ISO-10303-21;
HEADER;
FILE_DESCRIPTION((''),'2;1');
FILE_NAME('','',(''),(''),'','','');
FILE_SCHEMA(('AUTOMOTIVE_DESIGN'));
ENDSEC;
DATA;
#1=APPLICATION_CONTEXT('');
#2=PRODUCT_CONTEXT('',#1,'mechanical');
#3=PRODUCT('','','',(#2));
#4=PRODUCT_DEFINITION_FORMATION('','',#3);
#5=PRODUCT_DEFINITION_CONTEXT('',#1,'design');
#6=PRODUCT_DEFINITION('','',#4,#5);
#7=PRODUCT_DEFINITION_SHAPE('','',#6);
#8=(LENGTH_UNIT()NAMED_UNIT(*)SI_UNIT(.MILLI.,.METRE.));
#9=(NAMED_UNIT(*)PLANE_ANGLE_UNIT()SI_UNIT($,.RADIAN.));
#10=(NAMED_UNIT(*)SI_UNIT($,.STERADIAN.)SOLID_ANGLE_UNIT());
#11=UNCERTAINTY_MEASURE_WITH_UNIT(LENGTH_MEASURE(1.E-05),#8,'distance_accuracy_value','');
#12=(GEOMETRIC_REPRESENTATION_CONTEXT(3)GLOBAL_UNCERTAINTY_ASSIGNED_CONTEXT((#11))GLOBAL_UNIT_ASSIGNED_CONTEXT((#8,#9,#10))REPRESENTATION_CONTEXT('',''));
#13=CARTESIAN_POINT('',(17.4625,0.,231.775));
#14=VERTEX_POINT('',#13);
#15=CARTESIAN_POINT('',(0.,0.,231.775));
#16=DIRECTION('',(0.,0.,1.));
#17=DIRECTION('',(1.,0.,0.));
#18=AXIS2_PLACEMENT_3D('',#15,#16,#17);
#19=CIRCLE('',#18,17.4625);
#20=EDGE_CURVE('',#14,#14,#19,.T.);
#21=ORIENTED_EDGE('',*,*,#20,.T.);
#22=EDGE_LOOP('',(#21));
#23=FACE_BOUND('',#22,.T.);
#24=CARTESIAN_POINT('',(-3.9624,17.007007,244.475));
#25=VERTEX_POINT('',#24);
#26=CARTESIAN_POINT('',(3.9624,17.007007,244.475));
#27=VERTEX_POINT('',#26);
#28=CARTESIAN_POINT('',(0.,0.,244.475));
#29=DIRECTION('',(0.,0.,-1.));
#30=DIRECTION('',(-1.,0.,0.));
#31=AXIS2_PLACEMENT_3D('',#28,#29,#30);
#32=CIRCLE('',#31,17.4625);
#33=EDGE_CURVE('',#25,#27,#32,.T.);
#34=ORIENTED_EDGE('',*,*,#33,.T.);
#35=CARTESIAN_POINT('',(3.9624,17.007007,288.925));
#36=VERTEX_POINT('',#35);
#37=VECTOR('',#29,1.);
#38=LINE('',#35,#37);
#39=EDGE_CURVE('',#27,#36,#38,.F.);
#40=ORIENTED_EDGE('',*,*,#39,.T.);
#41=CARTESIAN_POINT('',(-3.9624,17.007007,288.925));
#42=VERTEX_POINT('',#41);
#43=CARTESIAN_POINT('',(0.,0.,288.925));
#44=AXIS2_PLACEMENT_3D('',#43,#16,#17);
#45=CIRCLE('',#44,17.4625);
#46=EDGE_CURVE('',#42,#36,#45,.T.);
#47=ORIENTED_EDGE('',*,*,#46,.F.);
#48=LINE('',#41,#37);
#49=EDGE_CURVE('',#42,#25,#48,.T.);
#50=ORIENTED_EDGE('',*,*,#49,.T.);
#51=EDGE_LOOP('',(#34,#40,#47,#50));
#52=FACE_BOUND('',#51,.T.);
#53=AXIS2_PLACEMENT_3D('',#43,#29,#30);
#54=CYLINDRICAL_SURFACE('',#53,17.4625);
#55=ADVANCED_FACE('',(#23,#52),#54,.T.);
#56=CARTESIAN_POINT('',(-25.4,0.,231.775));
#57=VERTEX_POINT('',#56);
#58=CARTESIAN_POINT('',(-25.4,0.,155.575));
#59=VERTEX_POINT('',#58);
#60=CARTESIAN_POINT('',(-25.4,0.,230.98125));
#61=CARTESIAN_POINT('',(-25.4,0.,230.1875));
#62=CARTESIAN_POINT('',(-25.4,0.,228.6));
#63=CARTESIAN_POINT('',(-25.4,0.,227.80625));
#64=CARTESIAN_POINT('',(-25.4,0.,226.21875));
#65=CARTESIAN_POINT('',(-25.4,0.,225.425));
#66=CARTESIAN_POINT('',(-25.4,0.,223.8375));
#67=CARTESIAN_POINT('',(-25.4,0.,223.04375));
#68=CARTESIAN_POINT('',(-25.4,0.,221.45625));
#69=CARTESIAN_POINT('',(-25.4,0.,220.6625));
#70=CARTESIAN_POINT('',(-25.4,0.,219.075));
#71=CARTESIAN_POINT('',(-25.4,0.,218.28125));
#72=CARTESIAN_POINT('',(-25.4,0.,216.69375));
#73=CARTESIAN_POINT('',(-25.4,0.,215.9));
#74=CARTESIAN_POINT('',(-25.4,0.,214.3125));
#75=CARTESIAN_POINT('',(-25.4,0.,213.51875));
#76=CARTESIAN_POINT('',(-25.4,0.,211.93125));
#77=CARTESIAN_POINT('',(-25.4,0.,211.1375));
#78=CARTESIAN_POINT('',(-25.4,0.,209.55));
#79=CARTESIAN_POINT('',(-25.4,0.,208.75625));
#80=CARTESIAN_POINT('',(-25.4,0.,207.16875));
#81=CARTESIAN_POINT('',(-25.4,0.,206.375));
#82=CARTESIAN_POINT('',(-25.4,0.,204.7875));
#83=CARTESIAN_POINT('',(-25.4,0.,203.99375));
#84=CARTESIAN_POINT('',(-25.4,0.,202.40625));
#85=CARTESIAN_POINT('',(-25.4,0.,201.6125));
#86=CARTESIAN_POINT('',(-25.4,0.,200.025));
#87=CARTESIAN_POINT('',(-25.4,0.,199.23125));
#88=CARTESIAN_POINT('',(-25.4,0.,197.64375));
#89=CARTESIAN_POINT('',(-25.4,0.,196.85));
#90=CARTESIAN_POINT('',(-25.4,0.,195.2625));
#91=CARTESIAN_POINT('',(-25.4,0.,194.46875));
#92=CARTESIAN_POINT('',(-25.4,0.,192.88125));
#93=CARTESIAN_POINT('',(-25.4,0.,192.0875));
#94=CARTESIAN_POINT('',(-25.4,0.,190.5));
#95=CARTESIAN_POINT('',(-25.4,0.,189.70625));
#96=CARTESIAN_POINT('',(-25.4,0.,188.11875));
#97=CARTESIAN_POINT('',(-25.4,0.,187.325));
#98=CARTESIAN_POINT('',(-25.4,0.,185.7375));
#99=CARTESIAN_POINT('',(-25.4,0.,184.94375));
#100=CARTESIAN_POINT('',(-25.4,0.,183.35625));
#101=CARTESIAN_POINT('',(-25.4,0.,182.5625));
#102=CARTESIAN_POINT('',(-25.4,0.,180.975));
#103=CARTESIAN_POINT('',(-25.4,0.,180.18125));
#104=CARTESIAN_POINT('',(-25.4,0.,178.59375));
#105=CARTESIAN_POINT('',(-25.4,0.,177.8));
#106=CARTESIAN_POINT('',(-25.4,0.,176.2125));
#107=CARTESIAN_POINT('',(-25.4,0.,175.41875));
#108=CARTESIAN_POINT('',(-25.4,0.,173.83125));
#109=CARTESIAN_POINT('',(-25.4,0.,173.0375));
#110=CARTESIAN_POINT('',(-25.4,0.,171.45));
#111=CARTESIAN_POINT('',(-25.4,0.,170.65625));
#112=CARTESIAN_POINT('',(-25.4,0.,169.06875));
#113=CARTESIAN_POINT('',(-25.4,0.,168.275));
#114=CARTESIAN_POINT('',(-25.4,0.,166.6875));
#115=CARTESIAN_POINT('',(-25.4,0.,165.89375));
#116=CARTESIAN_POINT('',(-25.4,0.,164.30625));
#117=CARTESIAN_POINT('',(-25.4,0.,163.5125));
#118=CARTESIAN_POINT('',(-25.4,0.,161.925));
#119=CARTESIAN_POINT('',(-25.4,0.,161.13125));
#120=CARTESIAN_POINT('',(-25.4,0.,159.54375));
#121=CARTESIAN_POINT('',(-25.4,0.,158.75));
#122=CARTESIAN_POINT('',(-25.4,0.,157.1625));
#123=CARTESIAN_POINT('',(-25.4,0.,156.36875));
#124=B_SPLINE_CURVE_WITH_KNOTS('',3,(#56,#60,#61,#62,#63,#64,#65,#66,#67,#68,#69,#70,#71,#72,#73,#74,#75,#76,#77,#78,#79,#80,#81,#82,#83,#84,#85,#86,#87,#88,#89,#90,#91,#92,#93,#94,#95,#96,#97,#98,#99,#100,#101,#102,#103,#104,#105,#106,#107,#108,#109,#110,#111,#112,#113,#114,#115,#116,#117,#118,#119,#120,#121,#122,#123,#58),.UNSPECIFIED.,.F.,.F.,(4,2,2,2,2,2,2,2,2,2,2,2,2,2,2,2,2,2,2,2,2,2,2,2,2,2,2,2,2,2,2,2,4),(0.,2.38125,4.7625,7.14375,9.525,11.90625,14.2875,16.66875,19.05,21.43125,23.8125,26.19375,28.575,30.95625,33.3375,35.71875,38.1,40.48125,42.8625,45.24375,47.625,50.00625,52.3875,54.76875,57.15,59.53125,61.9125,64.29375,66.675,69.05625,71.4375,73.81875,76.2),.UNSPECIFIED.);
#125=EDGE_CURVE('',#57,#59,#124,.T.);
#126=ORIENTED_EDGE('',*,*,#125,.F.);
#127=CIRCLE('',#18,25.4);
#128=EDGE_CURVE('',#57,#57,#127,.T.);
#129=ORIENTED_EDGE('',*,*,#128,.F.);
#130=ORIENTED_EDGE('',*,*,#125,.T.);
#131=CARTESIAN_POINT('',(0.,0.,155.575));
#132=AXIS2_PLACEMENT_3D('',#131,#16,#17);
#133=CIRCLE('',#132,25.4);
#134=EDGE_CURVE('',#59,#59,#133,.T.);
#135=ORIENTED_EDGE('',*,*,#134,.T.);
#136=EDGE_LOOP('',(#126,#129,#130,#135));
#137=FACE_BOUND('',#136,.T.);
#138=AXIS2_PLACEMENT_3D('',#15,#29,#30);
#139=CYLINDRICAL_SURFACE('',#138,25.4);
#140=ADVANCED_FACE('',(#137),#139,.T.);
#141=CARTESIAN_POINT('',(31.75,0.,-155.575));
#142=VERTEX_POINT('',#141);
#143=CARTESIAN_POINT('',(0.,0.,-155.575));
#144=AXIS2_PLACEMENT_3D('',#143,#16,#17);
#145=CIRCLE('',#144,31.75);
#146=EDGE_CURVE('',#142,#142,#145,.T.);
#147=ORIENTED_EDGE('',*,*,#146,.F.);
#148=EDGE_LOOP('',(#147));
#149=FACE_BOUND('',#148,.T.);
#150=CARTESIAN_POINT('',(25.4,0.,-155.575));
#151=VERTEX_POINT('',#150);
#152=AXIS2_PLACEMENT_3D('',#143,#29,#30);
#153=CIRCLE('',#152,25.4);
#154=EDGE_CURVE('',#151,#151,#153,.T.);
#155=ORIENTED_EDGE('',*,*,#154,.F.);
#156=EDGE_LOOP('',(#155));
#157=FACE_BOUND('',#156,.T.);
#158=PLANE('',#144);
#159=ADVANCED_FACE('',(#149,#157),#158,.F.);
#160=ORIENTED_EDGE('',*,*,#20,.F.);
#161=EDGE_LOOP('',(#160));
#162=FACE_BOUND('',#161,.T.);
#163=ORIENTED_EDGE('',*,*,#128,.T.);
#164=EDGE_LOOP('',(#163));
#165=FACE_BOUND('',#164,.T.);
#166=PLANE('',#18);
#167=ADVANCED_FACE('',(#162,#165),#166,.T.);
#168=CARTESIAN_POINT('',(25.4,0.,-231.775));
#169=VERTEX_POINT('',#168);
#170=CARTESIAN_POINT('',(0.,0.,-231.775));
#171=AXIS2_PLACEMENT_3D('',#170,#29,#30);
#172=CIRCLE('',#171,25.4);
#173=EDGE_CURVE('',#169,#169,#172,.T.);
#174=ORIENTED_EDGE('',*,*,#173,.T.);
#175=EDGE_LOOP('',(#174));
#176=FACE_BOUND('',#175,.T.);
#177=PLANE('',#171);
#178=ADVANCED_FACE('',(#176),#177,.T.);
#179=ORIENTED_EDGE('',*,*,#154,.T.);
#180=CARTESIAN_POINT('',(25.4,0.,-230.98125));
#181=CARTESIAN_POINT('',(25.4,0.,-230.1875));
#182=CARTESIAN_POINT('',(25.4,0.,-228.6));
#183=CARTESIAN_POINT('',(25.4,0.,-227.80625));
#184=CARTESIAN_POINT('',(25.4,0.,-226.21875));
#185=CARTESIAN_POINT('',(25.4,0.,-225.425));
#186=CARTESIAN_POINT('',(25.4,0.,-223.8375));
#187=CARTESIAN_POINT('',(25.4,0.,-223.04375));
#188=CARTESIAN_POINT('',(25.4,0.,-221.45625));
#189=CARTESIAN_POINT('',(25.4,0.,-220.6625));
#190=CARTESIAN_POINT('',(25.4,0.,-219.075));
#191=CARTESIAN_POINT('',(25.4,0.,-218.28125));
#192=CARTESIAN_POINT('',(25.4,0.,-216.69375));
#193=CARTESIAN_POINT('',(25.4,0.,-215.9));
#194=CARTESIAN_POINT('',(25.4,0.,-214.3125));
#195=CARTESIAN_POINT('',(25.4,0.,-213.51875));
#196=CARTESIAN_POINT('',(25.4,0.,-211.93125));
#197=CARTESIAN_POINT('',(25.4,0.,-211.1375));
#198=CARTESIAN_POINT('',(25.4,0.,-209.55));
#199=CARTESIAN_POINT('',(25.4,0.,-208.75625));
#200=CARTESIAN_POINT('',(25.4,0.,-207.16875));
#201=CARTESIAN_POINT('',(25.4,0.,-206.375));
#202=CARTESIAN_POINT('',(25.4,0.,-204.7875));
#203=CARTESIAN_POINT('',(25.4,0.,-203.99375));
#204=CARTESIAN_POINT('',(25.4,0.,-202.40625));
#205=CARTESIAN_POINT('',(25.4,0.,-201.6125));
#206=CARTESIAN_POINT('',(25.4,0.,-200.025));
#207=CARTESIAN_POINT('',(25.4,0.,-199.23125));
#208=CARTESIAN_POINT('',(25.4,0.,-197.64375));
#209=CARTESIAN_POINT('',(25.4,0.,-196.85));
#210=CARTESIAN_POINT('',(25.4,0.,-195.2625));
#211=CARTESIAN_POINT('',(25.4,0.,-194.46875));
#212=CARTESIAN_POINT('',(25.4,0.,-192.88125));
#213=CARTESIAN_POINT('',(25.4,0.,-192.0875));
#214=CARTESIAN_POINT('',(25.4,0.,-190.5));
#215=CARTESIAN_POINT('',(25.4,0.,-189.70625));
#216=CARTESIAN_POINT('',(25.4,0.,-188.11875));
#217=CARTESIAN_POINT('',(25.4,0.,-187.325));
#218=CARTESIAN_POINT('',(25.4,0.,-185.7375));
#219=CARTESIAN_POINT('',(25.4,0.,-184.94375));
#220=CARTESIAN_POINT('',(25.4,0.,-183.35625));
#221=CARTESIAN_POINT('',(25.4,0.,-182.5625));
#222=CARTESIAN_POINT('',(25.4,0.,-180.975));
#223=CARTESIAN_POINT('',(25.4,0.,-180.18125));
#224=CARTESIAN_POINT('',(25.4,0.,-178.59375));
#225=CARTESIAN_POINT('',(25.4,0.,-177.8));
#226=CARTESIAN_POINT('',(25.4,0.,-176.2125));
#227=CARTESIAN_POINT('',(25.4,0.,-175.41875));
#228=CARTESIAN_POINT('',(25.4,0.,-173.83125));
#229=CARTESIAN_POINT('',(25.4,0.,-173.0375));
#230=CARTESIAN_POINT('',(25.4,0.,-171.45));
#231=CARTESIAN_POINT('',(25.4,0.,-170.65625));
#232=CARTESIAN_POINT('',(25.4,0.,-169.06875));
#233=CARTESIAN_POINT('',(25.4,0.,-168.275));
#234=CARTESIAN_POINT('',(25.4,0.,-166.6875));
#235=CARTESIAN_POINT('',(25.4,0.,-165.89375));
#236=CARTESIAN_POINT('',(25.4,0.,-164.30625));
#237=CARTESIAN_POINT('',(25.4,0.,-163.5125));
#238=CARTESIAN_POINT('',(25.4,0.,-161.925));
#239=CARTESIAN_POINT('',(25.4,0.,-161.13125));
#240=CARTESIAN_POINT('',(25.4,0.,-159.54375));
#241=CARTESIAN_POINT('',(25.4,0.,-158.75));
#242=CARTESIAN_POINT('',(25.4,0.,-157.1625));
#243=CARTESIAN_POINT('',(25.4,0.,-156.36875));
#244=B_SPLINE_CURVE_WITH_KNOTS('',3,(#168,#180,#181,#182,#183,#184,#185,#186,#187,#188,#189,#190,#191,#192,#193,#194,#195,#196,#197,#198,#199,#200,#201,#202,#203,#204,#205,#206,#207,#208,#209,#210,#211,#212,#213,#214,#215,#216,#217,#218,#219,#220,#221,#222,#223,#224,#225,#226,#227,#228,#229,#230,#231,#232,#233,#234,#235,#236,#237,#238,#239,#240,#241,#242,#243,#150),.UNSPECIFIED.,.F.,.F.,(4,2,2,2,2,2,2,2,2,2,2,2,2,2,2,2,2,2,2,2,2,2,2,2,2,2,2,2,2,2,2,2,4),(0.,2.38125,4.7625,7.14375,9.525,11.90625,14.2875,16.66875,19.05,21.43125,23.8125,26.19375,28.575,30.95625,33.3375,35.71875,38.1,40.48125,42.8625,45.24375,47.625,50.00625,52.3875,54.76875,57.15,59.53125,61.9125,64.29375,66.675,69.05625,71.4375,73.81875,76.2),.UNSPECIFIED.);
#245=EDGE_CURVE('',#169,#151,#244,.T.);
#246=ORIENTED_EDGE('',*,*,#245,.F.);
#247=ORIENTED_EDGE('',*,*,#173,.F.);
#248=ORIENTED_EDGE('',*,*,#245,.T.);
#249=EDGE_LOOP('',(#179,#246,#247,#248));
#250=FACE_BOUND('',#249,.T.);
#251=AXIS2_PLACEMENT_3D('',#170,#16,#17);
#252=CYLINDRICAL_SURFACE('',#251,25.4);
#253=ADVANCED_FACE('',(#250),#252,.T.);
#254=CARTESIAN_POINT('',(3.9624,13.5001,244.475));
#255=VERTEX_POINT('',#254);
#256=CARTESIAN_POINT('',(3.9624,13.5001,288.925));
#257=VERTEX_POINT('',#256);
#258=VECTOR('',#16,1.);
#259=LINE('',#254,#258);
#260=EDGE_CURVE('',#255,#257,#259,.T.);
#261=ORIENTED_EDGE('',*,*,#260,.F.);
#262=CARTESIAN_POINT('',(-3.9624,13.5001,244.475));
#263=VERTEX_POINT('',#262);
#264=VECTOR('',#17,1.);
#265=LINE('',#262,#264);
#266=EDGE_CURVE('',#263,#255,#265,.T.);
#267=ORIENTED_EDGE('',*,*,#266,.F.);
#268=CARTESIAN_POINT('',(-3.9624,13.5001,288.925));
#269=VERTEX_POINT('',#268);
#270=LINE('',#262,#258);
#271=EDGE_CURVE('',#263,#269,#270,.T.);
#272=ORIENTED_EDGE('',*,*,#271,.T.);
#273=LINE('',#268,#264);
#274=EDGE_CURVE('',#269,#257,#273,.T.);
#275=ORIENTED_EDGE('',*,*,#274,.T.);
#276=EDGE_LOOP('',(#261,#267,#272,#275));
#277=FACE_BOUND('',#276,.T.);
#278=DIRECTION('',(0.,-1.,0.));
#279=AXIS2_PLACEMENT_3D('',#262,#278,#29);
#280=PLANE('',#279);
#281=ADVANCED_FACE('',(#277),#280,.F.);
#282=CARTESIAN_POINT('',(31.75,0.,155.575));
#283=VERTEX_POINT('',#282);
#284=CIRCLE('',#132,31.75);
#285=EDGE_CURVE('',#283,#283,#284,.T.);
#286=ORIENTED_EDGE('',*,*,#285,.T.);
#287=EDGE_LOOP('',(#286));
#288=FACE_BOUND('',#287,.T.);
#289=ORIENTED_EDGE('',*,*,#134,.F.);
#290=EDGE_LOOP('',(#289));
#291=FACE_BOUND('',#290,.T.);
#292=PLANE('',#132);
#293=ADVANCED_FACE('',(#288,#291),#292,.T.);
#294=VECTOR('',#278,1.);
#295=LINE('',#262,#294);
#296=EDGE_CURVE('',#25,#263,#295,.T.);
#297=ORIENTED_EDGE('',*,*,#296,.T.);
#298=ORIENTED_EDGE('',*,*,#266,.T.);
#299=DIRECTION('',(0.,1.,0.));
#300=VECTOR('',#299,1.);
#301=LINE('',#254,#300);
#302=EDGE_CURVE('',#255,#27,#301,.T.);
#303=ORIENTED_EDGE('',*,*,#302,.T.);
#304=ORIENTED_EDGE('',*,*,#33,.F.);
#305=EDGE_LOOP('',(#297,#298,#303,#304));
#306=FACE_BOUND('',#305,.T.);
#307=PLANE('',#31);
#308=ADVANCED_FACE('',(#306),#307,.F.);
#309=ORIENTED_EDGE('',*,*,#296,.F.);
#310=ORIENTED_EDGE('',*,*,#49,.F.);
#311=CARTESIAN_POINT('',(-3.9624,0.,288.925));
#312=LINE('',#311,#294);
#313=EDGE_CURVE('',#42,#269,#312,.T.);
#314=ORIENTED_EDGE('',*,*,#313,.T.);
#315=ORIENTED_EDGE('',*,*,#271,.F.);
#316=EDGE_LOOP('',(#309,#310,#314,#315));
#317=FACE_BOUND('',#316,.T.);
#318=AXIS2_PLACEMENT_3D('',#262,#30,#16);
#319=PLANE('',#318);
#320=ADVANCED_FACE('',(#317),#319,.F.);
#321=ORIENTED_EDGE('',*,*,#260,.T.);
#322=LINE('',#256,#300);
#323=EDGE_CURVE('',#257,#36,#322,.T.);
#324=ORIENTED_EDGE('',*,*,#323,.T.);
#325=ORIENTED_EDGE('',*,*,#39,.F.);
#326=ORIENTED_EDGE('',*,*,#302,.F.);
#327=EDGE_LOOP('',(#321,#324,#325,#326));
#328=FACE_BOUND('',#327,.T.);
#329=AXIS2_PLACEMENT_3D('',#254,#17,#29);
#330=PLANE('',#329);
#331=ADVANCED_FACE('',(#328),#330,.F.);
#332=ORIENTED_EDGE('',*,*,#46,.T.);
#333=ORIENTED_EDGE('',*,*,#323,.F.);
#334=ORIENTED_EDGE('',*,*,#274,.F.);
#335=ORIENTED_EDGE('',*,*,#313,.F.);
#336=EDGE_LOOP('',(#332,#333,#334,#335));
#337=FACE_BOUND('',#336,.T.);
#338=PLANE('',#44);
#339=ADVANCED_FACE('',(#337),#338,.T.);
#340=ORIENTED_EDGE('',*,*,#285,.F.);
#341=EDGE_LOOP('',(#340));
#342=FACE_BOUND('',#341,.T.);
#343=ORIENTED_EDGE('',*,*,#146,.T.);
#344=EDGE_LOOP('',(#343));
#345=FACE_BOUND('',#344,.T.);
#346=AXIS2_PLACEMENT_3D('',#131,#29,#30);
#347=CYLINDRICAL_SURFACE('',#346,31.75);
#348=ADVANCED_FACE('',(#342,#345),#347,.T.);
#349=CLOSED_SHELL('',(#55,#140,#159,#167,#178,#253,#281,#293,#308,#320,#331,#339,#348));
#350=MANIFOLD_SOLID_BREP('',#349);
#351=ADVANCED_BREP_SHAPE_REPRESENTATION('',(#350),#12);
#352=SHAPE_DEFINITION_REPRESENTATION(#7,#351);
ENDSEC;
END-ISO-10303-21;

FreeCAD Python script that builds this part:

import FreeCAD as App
import Part
import Sketcher

V = App.Vector
Q = App.Units.Quantity


def add_polygon(sketch, points):
    """Adds a closed chain of lines whose ends are joined by coincident constraints."""
    first, n = sketch.GeometryCount, len(points)
    for a, b in zip(points, points[1:] + points[:1]):
        sketch.addGeometry(Part.LineSegment(App.Vector(*a, 0), App.Vector(*b, 0)), False)
    for i in range(n):
        sketch.addConstraint(Sketcher.Constraint("Coincident", first + i, 2, first + (i + 1) % n, 1))

doc = App.newDocument("Part")
body = doc.addObject("PartDesign::Body", "Body")

sketch1 = body.newObject("Sketcher::SketchObject", "Sketch")
sketch1.AttachmentSupport = (doc.getObject("XY_Plane"), [""])
sketch1.MapMode = "FlatFace"
sketch1.addGeometry(Part.Circle(V(0, 0, 0), V(0, 0, 1), 32), False)
sketch1.addConstraint([
    Sketcher.Constraint("Coincident", 0, 3, -1, 1),
    Sketcher.Constraint("Diameter", 0, Q("2.5 in")),
])
pad1 = body.newObject("PartDesign::Pad", "Pad")
pad1.Profile = sketch1
pad1.Length = Q("12.25 in")
pad1.Midplane = True

sketch2 = body.newObject("Sketcher::SketchObject", "Sketch001")
sketch2.AttachmentSupport = (doc.getObject("XY_Plane"), [""])
sketch2.MapMode = "FlatFace"
sketch2.AttachmentOffset = App.Placement(V(0, 0, 6.125 * 25.4), App.Rotation())
sketch2.addGeometry(Part.Circle(V(0, 0, 0), V(0, 0, 1), 25), False)
sketch2.addConstraint([
    Sketcher.Constraint("Coincident", 0, 3, -1, 1),
    Sketcher.Constraint("Diameter", 0, Q("2 in")),
])
pad2 = body.newObject("PartDesign::Pad", "Pad001")
pad2.Profile = sketch2
pad2.Length = Q("3 in")

sketch3 = body.newObject("Sketcher::SketchObject", "Sketch002")
sketch3.AttachmentSupport = (doc.getObject("XY_Plane"), [""])
sketch3.MapMode = "FlatFace"
sketch3.AttachmentOffset = App.Placement(V(0, 0, -9.125 * 25.4), App.Rotation())
sketch3.addGeometry(Part.Circle(V(0, 0, 0), V(0, 0, 1), 25), False)
sketch3.addConstraint([
    Sketcher.Constraint("Coincident", 0, 3, -1, 1),
    Sketcher.Constraint("Diameter", 0, Q("2 in")),
])
pad3 = body.newObject("PartDesign::Pad", "Pad002")
pad3.Profile = sketch3
pad3.Length = Q("3 in")

sketch4 = body.newObject("Sketcher::SketchObject", "Sketch003")
sketch4.AttachmentSupport = (doc.getObject("XY_Plane"), [""])
sketch4.MapMode = "FlatFace"
sketch4.AttachmentOffset = App.Placement(V(0, 0, 9.125 * 25.4), App.Rotation())
sketch4.addGeometry(Part.Circle(V(0, 0, 0), V(0, 0, 1), 17), False)
sketch4.addConstraint([
    Sketcher.Constraint("Coincident", 0, 3, -1, 1),
    Sketcher.Constraint("Diameter", 0, Q("1.375 in")),
])
pad4 = body.newObject("PartDesign::Pad", "Pad003")
pad4.Profile = sketch4
pad4.Length = Q("2.25 in")

sketch5 = body.newObject("Sketcher::SketchObject", "Sketch004")
sketch5.AttachmentSupport = (doc.getObject("XY_Plane"), [""])
sketch5.MapMode = "FlatFace"
sketch5.AttachmentOffset = App.Placement(V(0, 0, 11.375 * 25.4), App.Rotation())
add_polygon(sketch5, [(-4, 21), (-4, 14), (4, 14), (4, 21)])
sketch5.addConstraint([
    Sketcher.Constraint("Vertical", 0),
    Sketcher.Constraint("Horizontal", 1),
    Sketcher.Constraint("Vertical", 2),
    Sketcher.Constraint("Horizontal", 3),
    Sketcher.Constraint("Equal", 3, 0),
    Sketcher.Constraint("DistanceX", 1, 1, 1, 2, Q("0.312 in")),
    Sketcher.Constraint("DistanceX", 0, 2, -1, 1, Q("0.156 in")),
    Sketcher.Constraint("DistanceY", -1, 1, 0, 2, Q("0.5315 in")),
])
pocket1 = body.newObject("PartDesign::Pocket", "Pocket")
pocket1.Profile = sketch5
pocket1.Length = Q("1.75 in")

doc.recompute()
